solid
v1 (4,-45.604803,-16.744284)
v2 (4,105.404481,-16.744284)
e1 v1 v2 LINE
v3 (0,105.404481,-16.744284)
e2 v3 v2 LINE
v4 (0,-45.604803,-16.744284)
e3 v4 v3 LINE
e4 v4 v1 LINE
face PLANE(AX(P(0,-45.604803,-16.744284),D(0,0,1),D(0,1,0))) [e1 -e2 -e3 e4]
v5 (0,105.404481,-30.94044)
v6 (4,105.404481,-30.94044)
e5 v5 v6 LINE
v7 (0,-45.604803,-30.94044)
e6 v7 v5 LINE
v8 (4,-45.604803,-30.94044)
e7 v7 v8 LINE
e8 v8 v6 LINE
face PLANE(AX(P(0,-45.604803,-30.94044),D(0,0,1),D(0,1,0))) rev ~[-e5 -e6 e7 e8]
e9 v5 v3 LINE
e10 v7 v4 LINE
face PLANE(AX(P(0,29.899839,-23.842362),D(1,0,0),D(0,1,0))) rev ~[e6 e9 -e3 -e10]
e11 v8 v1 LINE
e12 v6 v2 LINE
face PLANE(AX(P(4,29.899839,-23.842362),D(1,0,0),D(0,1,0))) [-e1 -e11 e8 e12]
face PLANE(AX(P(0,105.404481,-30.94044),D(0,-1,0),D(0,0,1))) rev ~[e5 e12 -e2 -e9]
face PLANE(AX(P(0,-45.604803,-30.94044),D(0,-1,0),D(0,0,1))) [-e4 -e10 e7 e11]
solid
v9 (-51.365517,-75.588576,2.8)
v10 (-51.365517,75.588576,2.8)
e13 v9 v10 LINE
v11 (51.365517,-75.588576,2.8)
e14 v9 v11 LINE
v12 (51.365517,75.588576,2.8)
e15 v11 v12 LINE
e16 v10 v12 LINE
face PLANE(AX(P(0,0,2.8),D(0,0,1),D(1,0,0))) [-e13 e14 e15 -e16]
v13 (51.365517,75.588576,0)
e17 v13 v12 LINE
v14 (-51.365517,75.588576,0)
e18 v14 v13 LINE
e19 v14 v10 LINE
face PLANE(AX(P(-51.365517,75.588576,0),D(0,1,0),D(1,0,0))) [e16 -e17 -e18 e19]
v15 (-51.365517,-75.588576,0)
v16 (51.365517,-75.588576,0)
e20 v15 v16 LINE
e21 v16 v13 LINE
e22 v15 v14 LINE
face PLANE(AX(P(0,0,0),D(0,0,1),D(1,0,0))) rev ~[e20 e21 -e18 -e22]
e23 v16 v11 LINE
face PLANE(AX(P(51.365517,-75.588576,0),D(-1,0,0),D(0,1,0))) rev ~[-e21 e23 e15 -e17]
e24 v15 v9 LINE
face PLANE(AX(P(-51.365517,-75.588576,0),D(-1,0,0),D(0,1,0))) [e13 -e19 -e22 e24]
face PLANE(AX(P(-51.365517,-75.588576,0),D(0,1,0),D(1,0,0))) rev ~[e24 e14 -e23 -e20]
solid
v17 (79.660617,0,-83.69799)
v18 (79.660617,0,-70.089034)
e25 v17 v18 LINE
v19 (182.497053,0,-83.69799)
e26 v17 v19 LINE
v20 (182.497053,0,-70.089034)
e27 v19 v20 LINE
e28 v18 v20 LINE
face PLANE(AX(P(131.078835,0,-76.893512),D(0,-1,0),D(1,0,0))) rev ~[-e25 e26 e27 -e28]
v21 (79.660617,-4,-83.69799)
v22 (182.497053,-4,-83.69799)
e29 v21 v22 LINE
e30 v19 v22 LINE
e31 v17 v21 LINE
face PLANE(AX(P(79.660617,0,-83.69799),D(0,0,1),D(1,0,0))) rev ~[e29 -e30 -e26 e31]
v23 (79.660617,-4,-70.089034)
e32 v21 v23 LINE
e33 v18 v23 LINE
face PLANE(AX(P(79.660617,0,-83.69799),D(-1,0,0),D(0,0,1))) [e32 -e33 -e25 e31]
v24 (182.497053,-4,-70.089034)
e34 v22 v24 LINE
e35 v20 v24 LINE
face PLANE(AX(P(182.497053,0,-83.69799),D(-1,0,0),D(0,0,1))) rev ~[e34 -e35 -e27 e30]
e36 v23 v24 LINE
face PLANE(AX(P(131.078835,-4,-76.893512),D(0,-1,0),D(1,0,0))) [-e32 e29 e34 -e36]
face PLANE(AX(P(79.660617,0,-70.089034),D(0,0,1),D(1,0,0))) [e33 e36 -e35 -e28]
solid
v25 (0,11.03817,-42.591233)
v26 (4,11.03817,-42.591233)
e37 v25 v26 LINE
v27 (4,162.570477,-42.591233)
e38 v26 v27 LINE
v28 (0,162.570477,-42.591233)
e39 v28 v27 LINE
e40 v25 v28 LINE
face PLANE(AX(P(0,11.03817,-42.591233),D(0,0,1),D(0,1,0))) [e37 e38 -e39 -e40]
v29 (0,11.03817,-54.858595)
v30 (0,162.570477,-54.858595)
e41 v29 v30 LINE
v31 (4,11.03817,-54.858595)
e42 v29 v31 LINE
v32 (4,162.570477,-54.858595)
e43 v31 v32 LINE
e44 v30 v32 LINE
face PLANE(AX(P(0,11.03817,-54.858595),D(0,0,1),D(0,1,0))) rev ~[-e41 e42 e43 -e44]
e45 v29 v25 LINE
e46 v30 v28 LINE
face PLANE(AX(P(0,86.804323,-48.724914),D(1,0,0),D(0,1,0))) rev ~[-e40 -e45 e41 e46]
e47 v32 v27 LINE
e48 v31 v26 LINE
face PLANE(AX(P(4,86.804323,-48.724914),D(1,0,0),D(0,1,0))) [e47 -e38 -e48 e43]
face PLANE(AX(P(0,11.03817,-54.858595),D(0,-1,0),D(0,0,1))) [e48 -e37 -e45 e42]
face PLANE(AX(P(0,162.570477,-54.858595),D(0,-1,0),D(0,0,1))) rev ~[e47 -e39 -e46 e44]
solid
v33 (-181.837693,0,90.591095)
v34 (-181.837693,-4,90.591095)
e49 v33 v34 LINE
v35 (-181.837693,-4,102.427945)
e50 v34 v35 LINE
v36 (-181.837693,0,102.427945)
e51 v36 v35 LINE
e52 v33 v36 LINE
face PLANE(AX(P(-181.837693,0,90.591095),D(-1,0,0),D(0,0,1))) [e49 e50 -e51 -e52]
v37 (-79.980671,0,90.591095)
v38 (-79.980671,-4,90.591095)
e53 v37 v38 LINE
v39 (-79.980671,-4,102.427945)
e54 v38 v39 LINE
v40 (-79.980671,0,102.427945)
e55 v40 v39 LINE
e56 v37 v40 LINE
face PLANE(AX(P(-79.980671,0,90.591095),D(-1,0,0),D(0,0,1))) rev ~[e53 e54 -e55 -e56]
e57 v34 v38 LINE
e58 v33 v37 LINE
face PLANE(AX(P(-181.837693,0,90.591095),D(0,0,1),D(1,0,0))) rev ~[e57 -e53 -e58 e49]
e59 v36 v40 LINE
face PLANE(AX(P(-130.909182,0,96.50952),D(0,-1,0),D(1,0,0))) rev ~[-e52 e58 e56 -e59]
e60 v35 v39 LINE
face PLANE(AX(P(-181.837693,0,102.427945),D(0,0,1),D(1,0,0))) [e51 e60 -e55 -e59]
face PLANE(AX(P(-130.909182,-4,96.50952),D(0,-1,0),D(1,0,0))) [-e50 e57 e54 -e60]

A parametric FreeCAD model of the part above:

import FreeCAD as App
import Part
import Sketcher
from FreeCAD import Vector
Q = App.Units.Quantity

doc = App.newDocument("Part")
body = doc.addObject("PartDesign::Body", "Body")

# Sketch on XY plane
sketch1 = doc.addObject("Sketcher::SketchObject", "Sketch")
body.addObject(sketch1)
sketch1.AttachmentSupport = (doc.XY_Plane, [""])
sketch1.MapMode = "FlatFace"
sketch1.addGeometry([
    Part.LineSegment(Vector(-51, 76, 0), Vector(-51, -76, 0)),
    Part.LineSegment(Vector(-51, -76, 0), Vector(51, -76, 0)),
    Part.LineSegment(Vector(51, -76, 0), Vector(51, 76, 0)),
    Part.LineSegment(Vector(51, 76, 0), Vector(-51, 76, 0)),
], False)
sketch1.addConstraint([
    Sketcher.Constraint("Coincident", 0, 2, 1, 1),
    Sketcher.Constraint("Coincident", 1, 2, 2, 1),
    Sketcher.Constraint("Coincident", 2, 2, 3, 1),
    Sketcher.Constraint("Coincident", 3, 2, 0, 1),
    Sketcher.Constraint("Vertical", 0),
    Sketcher.Constraint("Horizontal", 1),
    Sketcher.Constraint("Vertical", 2),
    Sketcher.Constraint("Horizontal", 3),
    Sketcher.Constraint("Symmetric", 0, 2, 2, 2, -1, 1),
    Sketcher.Constraint("DistanceY", 0, 2, 0, 1, Q("151.177152 mm")),
    Sketcher.Constraint("DistanceX", 1, 1, 1, 2, Q("102.731034 mm")),
])
pad1 = doc.addObject("PartDesign::Pad", "Pad")
body.addObject(pad1)
pad1.Profile = sketch1
pad1.Length = 2.8
body2 = doc.addObject("PartDesign::Body", "Body001")

# Sketch on YZ plane
sketch2 = doc.addObject("Sketcher::SketchObject", "Sketch001")
body2.addObject(sketch2)
sketch2.AttachmentSupport = (doc.getObject("YZ_Plane001"), [""])
sketch2.MapMode = "FlatFace"
sketch2.addGeometry([
    Part.LineSegment(Vector(-46, -17, 0), Vector(-46, -31, 0)),
    Part.LineSegment(Vector(-46, -31, 0), Vector(105, -31, 0)),
    Part.LineSegment(Vector(105, -31, 0), Vector(105, -17, 0)),
    Part.LineSegment(Vector(105, -17, 0), Vector(-46, -17, 0)),
], False)
sketch2.addConstraint([
    Sketcher.Constraint("Coincident", 0, 2, 1, 1),
    Sketcher.Constraint("Coincident", 1, 2, 2, 1),
    Sketcher.Constraint("Coincident", 2, 2, 3, 1),
    Sketcher.Constraint("Coincident", 3, 2, 0, 1),
    Sketcher.Constraint("Vertical", 0),
    Sketcher.Constraint("Horizontal", 1),
    Sketcher.Constraint("Vertical", 2),
    Sketcher.Constraint("Horizontal", 3),
    Sketcher.Constraint("DistanceX", 1, 1, 1, 2, Q("151.009284 mm")),
    Sketcher.Constraint("DistanceY", 0, 2, 0, 1, Q("14.196156 mm")),
    Sketcher.Constraint("DistanceY", 0, 2, -1, 1, Q("30.94044 mm")),
    Sketcher.Constraint("DistanceX", -1, 1, 1, 2, Q("105.404481 mm")),
])
pad2 = doc.addObject("PartDesign::Pad", "Pad001")
body2.addObject(pad2)
pad2.Profile = sketch2
pad2.Length = 4
body3 = doc.addObject("PartDesign::Body", "Body002")

# Sketch on YZ plane
sketch3 = doc.addObject("Sketcher::SketchObject", "Sketch002")
body3.addObject(sketch3)
sketch3.AttachmentSupport = (doc.getObject("YZ_Plane002"), [""])
sketch3.MapMode = "FlatFace"
sketch3.addGeometry([
    Part.LineSegment(Vector(11, -43, 0), Vector(11, -55, 0)),
    Part.LineSegment(Vector(11, -55, 0), Vector(163, -55, 0)),
    Part.LineSegment(Vector(163, -55, 0), Vector(163, -43, 0)),
    Part.LineSegment(Vector(163, -43, 0), Vector(11, -43, 0)),
], False)
sketch3.addConstraint([
    Sketcher.Constraint("Coincident", 0, 2, 1, 1),
    Sketcher.Constraint("Coincident", 1, 2, 2, 1),
    Sketcher.Constraint("Coincident", 2, 2, 3, 1),
    Sketcher.Constraint("Coincident", 3, 2, 0, 1),
    Sketcher.Constraint("Vertical", 0),
    Sketcher.Constraint("Horizontal", 1),
    Sketcher.Constraint("Vertical", 2),
    Sketcher.Constraint("Horizontal", 3),
    Sketcher.Constraint("DistanceY", 0, 2, 0, 1, Q("12.267362 mm")),
    Sketcher.Constraint("DistanceX", 1, 1, 1, 2, Q("151.532307 mm")),
    Sketcher.Constraint("DistanceX", -1, 1, 0, 2, Q("11.03817 mm")),
    Sketcher.Constraint("DistanceY", 0, 2, -1, 1, Q("54.858595 mm")),
])
pad3 = doc.addObject("PartDesign::Pad", "Pad002")
body3.addObject(pad3)
pad3.Profile = sketch3
pad3.Length = 4
body4 = doc.addObject("PartDesign::Body", "Body003")

# Sketch on XZ plane
sketch4 = doc.addObject("Sketcher::SketchObject", "Sketch003")
body4.addObject(sketch4)
sketch4.AttachmentSupport = (doc.getObject("XZ_Plane003"), [""])
sketch4.MapMode = "FlatFace"
sketch4.addGeometry([
    Part.LineSegment(Vector(80, -70, 0), Vector(80, -84, 0)),
    Part.LineSegment(Vector(80, -84, 0), Vector(182, -84, 0)),
    Part.LineSegment(Vector(182, -84, 0), Vector(182, -70, 0)),
    Part.LineSegment(Vector(182, -70, 0), Vector(80, -70, 0)),
], False)
sketch4.addConstraint([
    Sketcher.Constraint("Coincident", 0, 2, 1, 1),
    Sketcher.Constraint("Coincident", 1, 2, 2, 1),
    Sketcher.Constraint("Coincident", 2, 2, 3, 1),
    Sketcher.Constraint("Coincident", 3, 2, 0, 1),
    Sketcher.Constraint("Vertical", 0),
    Sketcher.Constraint("Horizontal", 1),
    Sketcher.Constraint("Vertical", 2),
    Sketcher.Constraint("Horizontal", 3),
    Sketcher.Constraint("DistanceX", 1, 1, 1, 2, Q("102.836437 mm")),
    Sketcher.Constraint("DistanceY", 0, 2, 0, 1, Q("13.608955 mm")),
    Sketcher.Constraint("DistanceY", 0, 2, -1, 1, Q("83.69799 mm")),
    Sketcher.Constraint("DistanceX", -1, 1, 0, 2, Q("79.660617 mm")),
])
pad4 = doc.addObject("PartDesign::Pad", "Pad003")
body4.addObject(pad4)
pad4.Profile = sketch4
pad4.Length = 4
body5 = doc.addObject("PartDesign::Body", "Body004")

# Sketch on XZ plane
sketch5 = doc.addObject("Sketcher::SketchObject", "Sketch004")
body5.addObject(sketch5)
sketch5.AttachmentSupport = (doc.getObject("XZ_Plane004"), [""])
sketch5.MapMode = "FlatFace"
sketch5.addGeometry([
    Part.LineSegment(Vector(-182, 102, 0), Vector(-182, 91, 0)),
    Part.LineSegment(Vector(-182, 91, 0), Vector(-80, 91, 0)),
    Part.LineSegment(Vector(-80, 91, 0), Vector(-80, 102, 0)),
    Part.LineSegment(Vector(-80, 102, 0), Vector(-182, 102, 0)),
], False)
sketch5.addConstraint([
    Sketcher.Constraint("Coincident", 0, 2, 1, 1),
    Sketcher.Constraint("Coincident", 1, 2, 2, 1),
    Sketcher.Constraint("Coincident", 2, 2, 3, 1),
    Sketcher.Constraint("Coincident", 3, 2, 0, 1),
    Sketcher.Constraint("Vertical", 0),
    Sketcher.Constraint("Horizontal", 1),
    Sketcher.Constraint("Vertical", 2),
    Sketcher.Constraint("Horizontal", 3),
    Sketcher.Constraint("DistanceX", 1, 1, 1, 2, Q("101.857022 mm")),
    Sketcher.Constraint("DistanceY", 0, 2, 0, 1, Q("11.83685 mm")),
    Sketcher.Constraint("DistanceX", 1, 2, -1, 1, Q("79.980671 mm")),
    Sketcher.Constraint("DistanceY", -1, 1, 0, 2, Q("90.591095 mm")),
])
pad5 = doc.addObject("PartDesign::Pad", "Pad004")
body5.addObject(pad5)
pad5.Profile = sketch5
pad5.Length = 4

doc.recompute()
